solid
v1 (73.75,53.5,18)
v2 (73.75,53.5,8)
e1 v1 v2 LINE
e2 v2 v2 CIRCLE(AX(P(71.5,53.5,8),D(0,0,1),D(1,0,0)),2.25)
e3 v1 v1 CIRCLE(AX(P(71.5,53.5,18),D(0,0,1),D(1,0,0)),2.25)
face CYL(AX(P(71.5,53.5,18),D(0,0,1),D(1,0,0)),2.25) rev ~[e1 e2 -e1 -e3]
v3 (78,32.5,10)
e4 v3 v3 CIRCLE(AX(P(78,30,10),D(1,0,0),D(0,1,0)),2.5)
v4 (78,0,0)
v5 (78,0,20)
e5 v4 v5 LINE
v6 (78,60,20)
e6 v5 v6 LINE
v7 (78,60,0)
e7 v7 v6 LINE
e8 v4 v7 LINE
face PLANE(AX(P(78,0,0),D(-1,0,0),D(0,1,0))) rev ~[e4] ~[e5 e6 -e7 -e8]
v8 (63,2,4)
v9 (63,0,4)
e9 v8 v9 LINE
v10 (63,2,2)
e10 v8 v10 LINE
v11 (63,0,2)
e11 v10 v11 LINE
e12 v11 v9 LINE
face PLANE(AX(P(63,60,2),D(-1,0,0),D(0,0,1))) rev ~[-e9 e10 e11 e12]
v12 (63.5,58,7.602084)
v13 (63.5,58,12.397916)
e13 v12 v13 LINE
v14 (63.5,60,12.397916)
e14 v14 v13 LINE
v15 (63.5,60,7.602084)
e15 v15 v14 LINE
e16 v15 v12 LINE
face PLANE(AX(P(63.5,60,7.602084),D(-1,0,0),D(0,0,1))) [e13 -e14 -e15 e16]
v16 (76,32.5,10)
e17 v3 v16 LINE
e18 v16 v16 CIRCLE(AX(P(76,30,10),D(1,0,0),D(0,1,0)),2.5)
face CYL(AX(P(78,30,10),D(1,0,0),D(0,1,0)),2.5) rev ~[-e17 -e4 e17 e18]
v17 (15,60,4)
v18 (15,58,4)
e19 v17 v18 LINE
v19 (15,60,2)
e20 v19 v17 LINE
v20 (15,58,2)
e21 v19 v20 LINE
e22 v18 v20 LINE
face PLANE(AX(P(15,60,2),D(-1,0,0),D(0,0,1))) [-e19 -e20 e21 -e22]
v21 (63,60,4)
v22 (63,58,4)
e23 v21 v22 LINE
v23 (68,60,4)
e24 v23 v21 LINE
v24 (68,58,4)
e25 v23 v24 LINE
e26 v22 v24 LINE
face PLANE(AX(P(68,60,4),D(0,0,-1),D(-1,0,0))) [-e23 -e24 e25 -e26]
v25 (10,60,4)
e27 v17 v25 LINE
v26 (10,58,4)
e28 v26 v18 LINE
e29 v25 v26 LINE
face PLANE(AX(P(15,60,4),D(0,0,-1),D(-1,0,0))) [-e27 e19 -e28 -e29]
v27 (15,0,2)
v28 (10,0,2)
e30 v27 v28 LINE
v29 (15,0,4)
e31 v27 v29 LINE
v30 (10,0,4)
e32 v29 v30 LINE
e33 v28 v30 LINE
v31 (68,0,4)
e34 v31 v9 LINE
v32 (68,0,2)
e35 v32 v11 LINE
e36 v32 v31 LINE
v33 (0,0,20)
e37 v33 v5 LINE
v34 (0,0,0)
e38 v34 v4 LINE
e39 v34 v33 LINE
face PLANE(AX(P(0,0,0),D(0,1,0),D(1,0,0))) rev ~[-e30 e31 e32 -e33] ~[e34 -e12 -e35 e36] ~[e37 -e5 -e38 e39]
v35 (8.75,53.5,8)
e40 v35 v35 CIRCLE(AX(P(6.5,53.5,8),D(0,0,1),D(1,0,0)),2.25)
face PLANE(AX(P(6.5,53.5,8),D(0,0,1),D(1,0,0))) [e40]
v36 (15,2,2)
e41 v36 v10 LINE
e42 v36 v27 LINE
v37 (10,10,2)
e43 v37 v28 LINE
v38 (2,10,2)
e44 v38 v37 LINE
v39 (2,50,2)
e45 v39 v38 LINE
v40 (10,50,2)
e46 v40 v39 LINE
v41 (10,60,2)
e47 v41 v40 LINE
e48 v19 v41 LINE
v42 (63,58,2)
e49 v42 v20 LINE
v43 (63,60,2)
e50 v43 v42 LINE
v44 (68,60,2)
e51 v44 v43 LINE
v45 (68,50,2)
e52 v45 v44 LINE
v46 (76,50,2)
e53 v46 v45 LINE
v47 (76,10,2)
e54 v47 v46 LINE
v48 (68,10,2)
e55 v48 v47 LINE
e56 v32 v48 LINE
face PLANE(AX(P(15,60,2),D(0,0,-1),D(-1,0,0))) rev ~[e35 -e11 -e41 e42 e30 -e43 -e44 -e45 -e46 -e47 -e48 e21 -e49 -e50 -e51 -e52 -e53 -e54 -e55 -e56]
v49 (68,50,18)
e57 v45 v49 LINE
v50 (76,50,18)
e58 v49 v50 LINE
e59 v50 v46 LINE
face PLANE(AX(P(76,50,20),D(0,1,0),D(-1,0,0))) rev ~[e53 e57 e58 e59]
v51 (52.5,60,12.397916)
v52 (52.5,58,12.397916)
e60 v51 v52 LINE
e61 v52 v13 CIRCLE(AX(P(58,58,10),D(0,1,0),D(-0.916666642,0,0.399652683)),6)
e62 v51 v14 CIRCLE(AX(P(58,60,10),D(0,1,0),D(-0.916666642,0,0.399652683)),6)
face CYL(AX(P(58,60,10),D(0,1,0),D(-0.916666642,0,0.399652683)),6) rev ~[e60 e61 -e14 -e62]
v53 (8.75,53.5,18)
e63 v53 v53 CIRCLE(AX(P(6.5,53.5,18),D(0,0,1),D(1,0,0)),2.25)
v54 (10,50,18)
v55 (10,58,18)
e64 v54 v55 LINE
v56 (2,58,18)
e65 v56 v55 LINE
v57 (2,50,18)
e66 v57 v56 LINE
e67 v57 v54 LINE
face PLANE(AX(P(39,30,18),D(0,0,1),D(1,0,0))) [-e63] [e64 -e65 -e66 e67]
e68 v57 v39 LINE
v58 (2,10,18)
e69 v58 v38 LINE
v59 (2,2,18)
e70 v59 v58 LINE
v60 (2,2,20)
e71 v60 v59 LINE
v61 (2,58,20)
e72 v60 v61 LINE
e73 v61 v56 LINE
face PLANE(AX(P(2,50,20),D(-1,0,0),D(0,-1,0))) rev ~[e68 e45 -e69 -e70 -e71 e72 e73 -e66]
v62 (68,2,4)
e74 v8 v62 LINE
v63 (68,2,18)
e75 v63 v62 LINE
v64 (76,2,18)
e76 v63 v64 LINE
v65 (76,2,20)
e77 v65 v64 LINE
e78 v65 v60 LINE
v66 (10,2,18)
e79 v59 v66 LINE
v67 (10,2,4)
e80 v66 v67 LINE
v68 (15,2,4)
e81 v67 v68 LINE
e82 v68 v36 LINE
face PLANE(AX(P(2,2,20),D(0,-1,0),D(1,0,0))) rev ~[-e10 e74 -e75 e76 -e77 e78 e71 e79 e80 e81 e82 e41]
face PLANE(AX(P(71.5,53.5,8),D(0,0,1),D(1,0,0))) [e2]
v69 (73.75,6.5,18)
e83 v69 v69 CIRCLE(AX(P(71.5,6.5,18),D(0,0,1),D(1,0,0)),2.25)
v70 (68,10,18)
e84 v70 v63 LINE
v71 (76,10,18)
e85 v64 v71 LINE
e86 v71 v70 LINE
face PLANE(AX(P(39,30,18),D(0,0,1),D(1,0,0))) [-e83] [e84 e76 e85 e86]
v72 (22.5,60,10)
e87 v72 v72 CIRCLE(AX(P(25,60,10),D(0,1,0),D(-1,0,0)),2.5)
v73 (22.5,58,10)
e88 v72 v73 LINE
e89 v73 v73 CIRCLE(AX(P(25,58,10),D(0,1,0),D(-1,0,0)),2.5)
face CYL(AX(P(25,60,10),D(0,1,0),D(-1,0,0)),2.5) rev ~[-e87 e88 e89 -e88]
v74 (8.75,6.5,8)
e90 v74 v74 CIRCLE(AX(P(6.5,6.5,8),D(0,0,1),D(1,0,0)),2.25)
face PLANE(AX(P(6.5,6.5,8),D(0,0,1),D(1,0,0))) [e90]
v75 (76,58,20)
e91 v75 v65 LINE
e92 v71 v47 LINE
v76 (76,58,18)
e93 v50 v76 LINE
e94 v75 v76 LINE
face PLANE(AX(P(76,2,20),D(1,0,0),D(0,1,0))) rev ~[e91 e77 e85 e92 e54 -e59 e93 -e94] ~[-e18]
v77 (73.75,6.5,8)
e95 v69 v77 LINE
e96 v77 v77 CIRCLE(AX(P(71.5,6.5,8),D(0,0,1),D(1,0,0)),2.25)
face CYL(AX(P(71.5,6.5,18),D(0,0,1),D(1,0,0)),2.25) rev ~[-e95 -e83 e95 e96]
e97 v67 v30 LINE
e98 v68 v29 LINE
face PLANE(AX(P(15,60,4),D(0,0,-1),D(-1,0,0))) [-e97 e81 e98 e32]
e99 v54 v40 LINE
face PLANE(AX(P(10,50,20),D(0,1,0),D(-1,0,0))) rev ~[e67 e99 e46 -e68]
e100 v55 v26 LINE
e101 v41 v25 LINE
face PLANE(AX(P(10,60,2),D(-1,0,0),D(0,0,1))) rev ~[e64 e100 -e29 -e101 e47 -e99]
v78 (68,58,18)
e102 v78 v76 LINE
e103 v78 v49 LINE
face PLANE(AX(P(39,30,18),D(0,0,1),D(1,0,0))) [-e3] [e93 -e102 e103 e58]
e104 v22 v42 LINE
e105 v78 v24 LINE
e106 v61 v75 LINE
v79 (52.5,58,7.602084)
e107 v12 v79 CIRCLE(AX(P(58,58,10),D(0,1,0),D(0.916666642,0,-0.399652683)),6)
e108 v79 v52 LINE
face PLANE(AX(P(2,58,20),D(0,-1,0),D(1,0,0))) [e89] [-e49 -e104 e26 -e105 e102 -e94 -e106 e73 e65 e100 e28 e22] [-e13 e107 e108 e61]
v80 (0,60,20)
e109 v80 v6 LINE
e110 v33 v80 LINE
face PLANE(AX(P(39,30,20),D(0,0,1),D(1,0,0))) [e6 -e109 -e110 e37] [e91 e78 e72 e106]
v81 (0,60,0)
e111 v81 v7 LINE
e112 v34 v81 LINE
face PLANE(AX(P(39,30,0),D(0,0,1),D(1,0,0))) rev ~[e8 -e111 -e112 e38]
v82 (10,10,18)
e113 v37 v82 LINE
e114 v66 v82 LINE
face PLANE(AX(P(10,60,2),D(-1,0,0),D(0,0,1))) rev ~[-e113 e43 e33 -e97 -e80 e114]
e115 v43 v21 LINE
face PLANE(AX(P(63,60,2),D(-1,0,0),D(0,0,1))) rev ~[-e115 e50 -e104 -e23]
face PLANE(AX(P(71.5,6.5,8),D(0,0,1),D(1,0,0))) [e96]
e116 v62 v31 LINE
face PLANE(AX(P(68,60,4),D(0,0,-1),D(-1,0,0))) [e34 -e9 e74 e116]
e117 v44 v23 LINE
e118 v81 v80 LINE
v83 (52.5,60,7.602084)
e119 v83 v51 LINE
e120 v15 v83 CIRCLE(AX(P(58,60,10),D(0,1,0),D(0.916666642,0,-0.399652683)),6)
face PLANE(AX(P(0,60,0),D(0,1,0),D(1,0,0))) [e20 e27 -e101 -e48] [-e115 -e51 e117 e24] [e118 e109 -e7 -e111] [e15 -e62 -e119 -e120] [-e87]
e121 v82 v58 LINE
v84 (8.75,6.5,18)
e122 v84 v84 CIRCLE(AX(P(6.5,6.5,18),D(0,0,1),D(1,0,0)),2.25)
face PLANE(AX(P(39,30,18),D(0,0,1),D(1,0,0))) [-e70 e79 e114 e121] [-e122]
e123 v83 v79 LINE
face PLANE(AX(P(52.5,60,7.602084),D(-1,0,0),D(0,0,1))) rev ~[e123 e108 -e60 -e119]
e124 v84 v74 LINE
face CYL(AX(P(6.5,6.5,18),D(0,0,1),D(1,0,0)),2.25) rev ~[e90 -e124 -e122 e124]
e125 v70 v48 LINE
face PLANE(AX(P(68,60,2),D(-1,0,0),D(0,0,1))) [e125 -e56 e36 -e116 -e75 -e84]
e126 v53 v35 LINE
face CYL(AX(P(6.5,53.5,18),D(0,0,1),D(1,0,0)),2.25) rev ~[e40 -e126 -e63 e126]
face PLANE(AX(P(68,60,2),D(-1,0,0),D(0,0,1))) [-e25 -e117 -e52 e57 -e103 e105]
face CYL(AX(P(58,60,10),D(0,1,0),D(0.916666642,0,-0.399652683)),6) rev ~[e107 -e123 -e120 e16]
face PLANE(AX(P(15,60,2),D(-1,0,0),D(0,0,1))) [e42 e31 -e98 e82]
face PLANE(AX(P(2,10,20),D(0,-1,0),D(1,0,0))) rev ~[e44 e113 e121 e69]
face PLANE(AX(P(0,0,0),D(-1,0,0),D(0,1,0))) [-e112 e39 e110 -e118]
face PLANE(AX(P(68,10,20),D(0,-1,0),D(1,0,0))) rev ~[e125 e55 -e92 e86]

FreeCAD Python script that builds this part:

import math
import FreeCAD as App
import Part
import Sketcher

V = App.Vector


def add_polygon(sketch, points):
    """Adds a closed chain of lines whose ends are joined by coincident constraints."""
    first, n = sketch.GeometryCount, len(points)
    for a, b in zip(points, points[1:] + points[:1]):
        sketch.addGeometry(Part.LineSegment(App.Vector(*a, 0), App.Vector(*b, 0)), False)
    for i in range(n):
        sketch.addConstraint(Sketcher.Constraint("Coincident", first + i, 2, first + (i + 1) % n, 1))

doc = App.newDocument("Part")
params = doc.addObject("Spreadsheet::Sheet", "Params")
for row, (alias, value) in enumerate([
    ("sketch1_width", "78 mm"),
    ("sketch1_height", "60 mm"),
    ("pad1_length", "20 mm"),
    ("sketch2_width", "8 mm"),
    ("sketch2_width2", "58 mm"),
    ("sketch2_height", "40 mm"),
    ("pocket1_length", "18 mm"),
    ("sketch3_width", "74 mm"),
    ("sketch3_height", "56 mm"),
    ("pocket2_length", "2 mm"),
    ("sketch4_diameter", "4.5 mm"),
    ("pocket3_length", "10 mm"),
    ("sketch5_diameter", "5 mm"),
    ("pocket4_length", "2 mm"),
    ("sketch6_diameter", "5 mm"),
    ("sketch6_radius", "6 mm"),
    ("pocket5_length", "2 mm"),
    ("sketch7_width", "5 mm"),
    ("sketch7_height", "2 mm"),
], start=1):
    params.set(f"A{row}", alias)
    params.set(f"B{row}", "=" + value)
    params.setAlias(f"B{row}", alias)

body = doc.addObject("PartDesign::Body", "Body")

# Sketch on XY plane
sketch1 = doc.addObject("Sketcher::SketchObject", "Sketch")
body.addObject(sketch1)
sketch1.AttachmentSupport = (doc.XY_Plane, [""])
sketch1.MapMode = "FlatFace"
add_polygon(sketch1, [(0, 60), (0, 0), (78, 0), (78, 60)])  # lines 0-3
sketch1.addConstraint([
    Sketcher.Constraint("Vertical", 0),
    Sketcher.Constraint("Horizontal", 1),
    Sketcher.Constraint("Vertical", 2),
    Sketcher.Constraint("Horizontal", 3),
    Sketcher.Constraint("Coincident", 0, 2, -1, 1),
    Sketcher.Constraint("DistanceX", 1, 1, 1, 2, 78.0),
    Sketcher.Constraint("DistanceY", 0, 2, 0, 1, 60.0),
])
sketch1.setExpression("Constraints[9]", "Params.sketch1_width")
sketch1.setExpression("Constraints[10]", "Params.sketch1_height")
pad1 = doc.addObject("PartDesign::Pad", "Pad")
body.addObject(pad1)
pad1.Profile = sketch1
pad1.setExpression("Length", "Params.pad1_length")

# Sketch on XY plane
sketch2 = doc.addObject("Sketcher::SketchObject", "Sketch001")
body.addObject(sketch2)
sketch2.AttachmentSupport = (doc.XY_Plane, [""])
sketch2.MapMode = "FlatFace"
sketch2.AttachmentOffset = App.Placement(V(0, 0, 20), App.Rotation())
add_polygon(sketch2, [(2, 50), (2, 10), (10, 10), (10, 2), (68, 2), (68, 10), (76, 10), (76, 50), (68, 50), (68, 58), (10, 58), (10, 50)])  # lines 0-11
sketch2.addConstraint([
    Sketcher.Constraint("Vertical", 0),
    Sketcher.Constraint("Horizontal", 1),
    Sketcher.Constraint("Vertical", 2),
    Sketcher.Constraint("Horizontal", 3),
    Sketcher.Constraint("Vertical", 4),
    Sketcher.Constraint("Horizontal", 5),
    Sketcher.Constraint("Vertical", 6),
    Sketcher.Constraint("Horizontal", 7),
    Sketcher.Constraint("Vertical", 8),
    Sketcher.Constraint("Horizontal", 9),
    Sketcher.Constraint("Vertical", 10),
    Sketcher.Constraint("Horizontal", 11),
    Sketcher.Constraint("Horizontal", 1, 2, 4, 2),
    Sketcher.Constraint("Horizontal", 7, 2, 10, 2),
    Sketcher.Constraint("Vertical", 4, 2, 7, 2),
    Sketcher.Constraint("Vertical", 2, 2, 9, 2),
    Sketcher.Constraint("Equal", 1, 5),
    Sketcher.Constraint("Equal", 11, 2),
    Sketcher.Constraint("Equal", 4, 8),
    Sketcher.Constraint("DistanceX", 1, 1, 1, 2, 8.0),
    Sketcher.Constraint("DistanceX", 3, 1, 3, 2, 58.0),
    Sketcher.Constraint("DistanceY", 0, 2, 0, 1, 40.0),
    Sketcher.Constraint("DistanceX", -1, 1, 0, 2, 2.0),
    Sketcher.Constraint("DistanceY", -1, 1, 0, 2, 10.0),
])
sketch2.setExpression("Constraints[31]", "Params.sketch2_width")
sketch2.setExpression("Constraints[32]", "Params.sketch2_width2")
sketch2.setExpression("Constraints[33]", "Params.sketch2_height")
pocket1 = doc.addObject("PartDesign::Pocket", "Pocket")
body.addObject(pocket1)
pocket1.Profile = sketch2
pocket1.setExpression("Length", "Params.pocket1_length")

# Sketch on XY plane
sketch3 = doc.addObject("Sketcher::SketchObject", "Sketch002")
body.addObject(sketch3)
sketch3.AttachmentSupport = (doc.XY_Plane, [""])
sketch3.MapMode = "FlatFace"
sketch3.AttachmentOffset = App.Placement(V(0, 0, 20), App.Rotation())
add_polygon(sketch3, [(2, 58), (2, 2), (76, 2), (76, 58)])  # lines 0-3
sketch3.addConstraint([
    Sketcher.Constraint("Vertical", 0),
    Sketcher.Constraint("Horizontal", 1),
    Sketcher.Constraint("Vertical", 2),
    Sketcher.Constraint("Horizontal", 3),
    Sketcher.Constraint("DistanceX", 1, 1, 1, 2, 74.0),
    Sketcher.Constraint("DistanceY", 0, 2, 0, 1, 56.0),
    Sketcher.Constraint("DistanceX", -1, 1, 0, 2, 2.0),
    Sketcher.Constraint("DistanceY", -1, 1, 0, 2, 2.0),
])
sketch3.setExpression("Constraints[8]", "Params.sketch3_width")
sketch3.setExpression("Constraints[9]", "Params.sketch3_height")
pocket2 = doc.addObject("PartDesign::Pocket", "Pocket001")
body.addObject(pocket2)
pocket2.Profile = sketch3
pocket2.setExpression("Length", "Params.pocket2_length")

# Sketch on XY plane
sketch4 = doc.addObject("Sketcher::SketchObject", "Sketch003")
body.addObject(sketch4)
sketch4.AttachmentSupport = (doc.XY_Plane, [""])
sketch4.MapMode = "FlatFace"
sketch4.AttachmentOffset = App.Placement(V(0, 0, 18), App.Rotation())
sketch4.addGeometry([
    Part.Circle(V(6.5, 53.5, 0), V(0, 0, 1), 2.25),
    Part.Circle(V(71.5, 53.5, 0), V(0, 0, 1), 2.25),
    Part.Circle(V(6.5, 6.5, 0), V(0, 0, 1), 2.25),
    Part.Circle(V(71.5, 6.5, 0), V(0, 0, 1), 2.25),
], False)
sketch4.addConstraint([
    Sketcher.Constraint("Equal", 0, 1),
    Sketcher.Constraint("Equal", 1, 2),
    Sketcher.Constraint("Equal", 2, 3),
    Sketcher.Constraint("Horizontal", 0, 3, 1, 3),
    Sketcher.Constraint("Horizontal", 2, 3, 3, 3),
    Sketcher.Constraint("Vertical", 0, 3, 2, 3),
    Sketcher.Constraint("Vertical", 1, 3, 3, 3),
    Sketcher.Constraint("Diameter", 0, 4.5),
    Sketcher.Constraint("DistanceX", 0, 3, 1, 3, 65.0),
    Sketcher.Constraint("DistanceY", 2, 3, 0, 3, 47.0),
    Sketcher.Constraint("DistanceX", -1, 1, 0, 3, 6.5),
    Sketcher.Constraint("DistanceY", -1, 1, 0, 3, 53.5),
])
sketch4.setExpression("Constraints[7]", "Params.sketch4_diameter")
pocket3 = doc.addObject("PartDesign::Pocket", "Pocket002")
body.addObject(pocket3)
pocket3.Profile = sketch4
pocket3.setExpression("Length", "Params.pocket3_length")

# Sketch on YZ plane
sketch5 = doc.addObject("Sketcher::SketchObject", "Sketch004")
body.addObject(sketch5)
sketch5.AttachmentSupport = (doc.YZ_Plane, [""])
sketch5.MapMode = "FlatFace"
sketch5.AttachmentOffset = App.Placement(V(0, 0, 78), App.Rotation())
sketch5.addGeometry(Part.Circle(V(30, 10, 0), V(0, 0, 1), 2.5), False)
sketch5.addConstraint([
    Sketcher.Constraint("Diameter", 0, 5.0),
    Sketcher.Constraint("DistanceX", -1, 1, 0, 3, 30.0),
    Sketcher.Constraint("DistanceY", -1, 1, 0, 3, 10.0),
])
sketch5.setExpression("Constraints[0]", "Params.sketch5_diameter")
pocket4 = doc.addObject("PartDesign::Pocket", "Pocket003")
body.addObject(pocket4)
pocket4.Profile = sketch5
pocket4.setExpression("Length", "Params.pocket4_length")

# Sketch on XZ plane
sketch6 = doc.addObject("Sketcher::SketchObject", "Sketch005")
body.addObject(sketch6)
sketch6.AttachmentSupport = (doc.XZ_Plane, [""])
sketch6.MapMode = "FlatFace"
sketch6.AttachmentOffset = App.Placement(V(0, 0, -60), App.Rotation())
sketch6.addGeometry([
    Part.Circle(V(25, 10, 0), V(0, 0, 1), 2.5),  # 0
    Part.LineSegment(V(63.5, 12.397916, 0), V(63.5, 7.602084, 0)),  # 1
    Part.ArcOfCircle(Part.Circle(V(58, 10, 0), V(0, 0, 1), 6), math.radians(-156.443532), math.radians(-23.556468)),  # 2
    Part.LineSegment(V(52.5, 7.602084, 0), V(52.5, 12.397916, 0)),  # 3
    Part.ArcOfCircle(Part.Circle(V(58, 10, 0), V(0, 0, 1), 6), math.radians(23.556468), math.radians(156.443532)),  # 4
], False)
sketch6.addConstraint([
    Sketcher.Constraint("Coincident", 1, 2, 2, 2),
    Sketcher.Constraint("Coincident", 2, 1, 3, 1),
    Sketcher.Constraint("Coincident", 3, 2, 4, 2),
    Sketcher.Constraint("Coincident", 4, 1, 1, 1),
    Sketcher.Constraint("Vertical", 1),
    Sketcher.Constraint("Vertical", 3),
    Sketcher.Constraint("Coincident", 4, 3, 2, 3),
    Sketcher.Constraint("Equal", 2, 4),
    Sketcher.Constraint("Horizontal", 0, 3, 2, 3),
    Sketcher.Constraint("Horizontal", 1, 2, 2, 1),
    Sketcher.Constraint("Diameter", 0, 5.0),
    Sketcher.Constraint("Radius", 2, 6.0),
    Sketcher.Constraint("DistanceX", -1, 1, 0, 3, 25.0),
    Sketcher.Constraint("DistanceY", -1, 1, 0, 3, 10.0),
    Sketcher.Constraint("DistanceX", -1, 1, 2, 3, 58.0),
    Sketcher.Constraint("DistanceX", 2, 1, 1, 2, 11.0),
])
sketch6.setExpression("Constraints[10]", "Params.sketch6_diameter")
sketch6.setExpression("Constraints[11]", "Params.sketch6_radius")
pocket5 = doc.addObject("PartDesign::Pocket", "Pocket004")
body.addObject(pocket5)
pocket5.Profile = sketch6
pocket5.setExpression("Length", "Params.pocket5_length")
pocket5.Reversed = True

# Sketch on XZ plane
sketch7 = doc.addObject("Sketcher::SketchObject", "Sketch006")
body.addObject(sketch7)
sketch7.AttachmentSupport = (doc.XZ_Plane, [""])
sketch7.MapMode = "FlatFace"
sketch7.AttachmentOffset = App.Placement(V(0, 0, -60), App.Rotation())
add_polygon(sketch7, [(68, 4), (68, 2), (63, 2), (63, 4)])  # lines 0-3
add_polygon(sketch7, [(15, 4), (15, 2), (10, 2), (10, 4)])  # lines 4-7
sketch7.addConstraint([
    Sketcher.Constraint("Vertical", 0),
    Sketcher.Constraint("Horizontal", 1),
    Sketcher.Constraint("Vertical", 2),
    Sketcher.Constraint("Horizontal", 3),
    Sketcher.Constraint("Vertical", 4),
    Sketcher.Constraint("Horizontal", 5),
    Sketcher.Constraint("Vertical", 6),
    Sketcher.Constraint("Horizontal", 7),
    Sketcher.Constraint("Horizontal", 1, 2, 4, 2),
    Sketcher.Constraint("Horizontal", 3, 2, 6, 2),
    Sketcher.Constraint("Equal", 3, 5),
    Sketcher.Constraint("DistanceX", 1, 2, 1, 1, 5.0),
    Sketcher.Constraint("DistanceY", 0, 2, 0, 1, 2.0),
    Sketcher.Constraint("DistanceX", -1, 1, 0, 2, 68.0),
    Sketcher.Constraint("DistanceY", -1, 1, 0, 2, 2.0),
    Sketcher.Constraint("DistanceX", -1, 1, 4, 2, 15.0),
])
sketch7.setExpression("Constraints[19]", "Params.sketch7_width")
sketch7.setExpression("Constraints[20]", "Params.sketch7_height")
pocket6 = doc.addObject("PartDesign::Pocket", "Pocket005")
body.addObject(pocket6)
pocket6.Profile = sketch7
pocket6.Type = "ThroughAll"
pocket6.Reversed = True

doc.recompute()
